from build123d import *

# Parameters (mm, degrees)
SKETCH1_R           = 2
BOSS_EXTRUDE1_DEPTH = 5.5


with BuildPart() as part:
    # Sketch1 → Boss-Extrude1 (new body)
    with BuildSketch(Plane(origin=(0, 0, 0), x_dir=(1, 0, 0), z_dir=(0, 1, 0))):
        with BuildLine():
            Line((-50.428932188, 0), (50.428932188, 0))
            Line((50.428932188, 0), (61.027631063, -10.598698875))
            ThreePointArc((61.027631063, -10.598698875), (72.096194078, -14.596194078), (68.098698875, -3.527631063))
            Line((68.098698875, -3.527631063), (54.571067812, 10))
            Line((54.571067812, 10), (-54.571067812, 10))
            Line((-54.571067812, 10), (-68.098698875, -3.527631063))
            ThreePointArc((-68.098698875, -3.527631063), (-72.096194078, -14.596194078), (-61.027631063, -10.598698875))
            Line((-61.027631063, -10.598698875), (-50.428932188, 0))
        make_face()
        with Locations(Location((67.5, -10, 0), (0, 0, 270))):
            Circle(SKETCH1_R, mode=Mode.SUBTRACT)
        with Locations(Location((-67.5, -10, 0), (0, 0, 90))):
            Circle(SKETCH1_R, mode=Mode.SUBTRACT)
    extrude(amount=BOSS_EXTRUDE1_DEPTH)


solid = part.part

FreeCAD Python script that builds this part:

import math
import FreeCAD as App
import Part
import Sketcher
from FreeCAD import Vector

doc = App.newDocument("Part")
body = doc.addObject("PartDesign::Body", "Body")

sketch1 = doc.addObject("Sketcher::SketchObject", "Sketch")
body.addObject(sketch1)
sketch1.AttachmentSupport = (doc.XZ_Plane, [""])
sketch1.MapMode = "FlatFace"
sketch1.addGeometry([
    Part.LineSegment(Vector(-50.428932, 0, 0), Vector(50.428932, 0, 0)),
    Part.LineSegment(Vector(50.428932, 0, 0), Vector(61.027631, 10.598699, 0)),
    Part.ArcOfCircle(Part.Circle(Vector(67.5, 10, 0), Vector(0, 0, 1), 6.5), math.radians(-84.715137), math.radians(174.715137)),
    Part.LineSegment(Vector(68.098699, 3.527631, 0), Vector(54.571068, -10, 0)),
    Part.LineSegment(Vector(54.571068, -10, 0), Vector(-54.571068, -10, 0)),
    Part.LineSegment(Vector(-54.571068, -10, 0), Vector(-68.098699, 3.527631, 0)),
    Part.ArcOfCircle(Part.Circle(Vector(-67.5, 10, 0), Vector(0, 0, 1), 6.5), math.radians(5.284863), math.radians(264.715137)),
    Part.LineSegment(Vector(-61.027631, 10.598699, 0), Vector(-50.428932, 0, 0)),
    Part.Circle(Vector(-67.5, 10, 0), Vector(0, 0, 1), 2),
    Part.Circle(Vector(67.5, 10, 0), Vector(0, 0, 1), 2),
], False)
sketch1.addConstraint([
    Sketcher.Constraint("Coincident", 0, 2, 1, 1),
    Sketcher.Constraint("Coincident", 1, 2, 2, 2),
    Sketcher.Constraint("Coincident", 2, 1, 3, 1),
    Sketcher.Constraint("Coincident", 3, 2, 4, 1),
    Sketcher.Constraint("Coincident", 4, 2, 5, 1),
    Sketcher.Constraint("Coincident", 5, 2, 6, 2),
    Sketcher.Constraint("Coincident", 6, 1, 7, 1),
    Sketcher.Constraint("Coincident", 7, 2, 0, 1),
    Sketcher.Constraint("Horizontal", 0),
    Sketcher.Constraint("Horizontal", 4),
    Sketcher.Constraint("Coincident", 8, 3, 6, 3),
    Sketcher.Constraint("Coincident", 9, 3, 2, 3),
    Sketcher.Constraint("Equal", 2, 6),
    Sketcher.Constraint("Equal", 8, 9),
    Sketcher.Constraint("Symmetric", 0, 2, 7, 2, -1, 1),
    Sketcher.Constraint("Symmetric", 2, 3, 6, 3, -2),
    Sketcher.Constraint("Parallel", 1, 3),
    Sketcher.Constraint("Perpendicular", 3, 5),
    Sketcher.Constraint("Parallel", 5, 7),
    Sketcher.Constraint("Horizontal", 2, 1, 5, 2),
    Sketcher.Constraint("Horizontal", 1, 2, 6, 1),
    Sketcher.Constraint("Diameter", 8, 4.0),
    Sketcher.Constraint("Radius", 2, 6.5),
    Sketcher.Constraint("DistanceY", -1, 1, 2, 3, 10.0),
    Sketcher.Constraint("DistanceY", 3, 2, -1, 1, 10.0),
    Sketcher.Constraint("DistanceX", 6, 3, 2, 3, 135.0),
    Sketcher.Constraint("DistanceX", 4, 2, 0, 2, 105.0),
    Sketcher.Constraint("DistanceY", -1, 1, 1, 2, 10.598699),
])
pad1 = doc.addObject("PartDesign::Pad", "Pad")
body.addObject(pad1)
pad1.Profile = sketch1
pad1.Length = 5.5
pad1.Reversed = True

doc.recompute()
